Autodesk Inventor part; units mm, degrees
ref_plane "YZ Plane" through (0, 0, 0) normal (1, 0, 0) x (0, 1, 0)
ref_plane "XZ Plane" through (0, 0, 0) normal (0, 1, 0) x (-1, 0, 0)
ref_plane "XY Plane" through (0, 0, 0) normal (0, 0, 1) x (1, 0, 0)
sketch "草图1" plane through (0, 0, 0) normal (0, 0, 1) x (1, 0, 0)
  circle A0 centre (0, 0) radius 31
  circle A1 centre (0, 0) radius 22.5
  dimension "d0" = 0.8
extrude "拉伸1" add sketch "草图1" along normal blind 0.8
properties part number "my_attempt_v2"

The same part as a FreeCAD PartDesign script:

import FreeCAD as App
import Part
import Sketcher

V = App.Vector

doc = App.newDocument("Part")
body = doc.addObject("PartDesign::Body", "Body")

sketch1 = doc.addObject("Sketcher::SketchObject", "Sketch")
body.addObject(sketch1)
sketch1.AttachmentSupport = (doc.XY_Plane, [""])
sketch1.MapMode = "FlatFace"
sketch1.addGeometry([
    Part.Circle(V(0, 0, 0), V(0, 0, 1), 31),
    Part.Circle(V(0, 0, 0), V(0, 0, 1), 22.5),
], False)
sketch1.addConstraint([
    Sketcher.Constraint("Coincident", 0, 3, -1, 1),
    Sketcher.Constraint("Coincident", 1, 3, -1, 1),
    Sketcher.Constraint("Diameter", 0, 62.0),
    Sketcher.Constraint("Diameter", 1, 45.0),
])
pad1 = doc.addObject("PartDesign::Pad", "Pad")
body.addObject(pad1)
pad1.Profile = sketch1
pad1.Length = 0.8

doc.recompute()
